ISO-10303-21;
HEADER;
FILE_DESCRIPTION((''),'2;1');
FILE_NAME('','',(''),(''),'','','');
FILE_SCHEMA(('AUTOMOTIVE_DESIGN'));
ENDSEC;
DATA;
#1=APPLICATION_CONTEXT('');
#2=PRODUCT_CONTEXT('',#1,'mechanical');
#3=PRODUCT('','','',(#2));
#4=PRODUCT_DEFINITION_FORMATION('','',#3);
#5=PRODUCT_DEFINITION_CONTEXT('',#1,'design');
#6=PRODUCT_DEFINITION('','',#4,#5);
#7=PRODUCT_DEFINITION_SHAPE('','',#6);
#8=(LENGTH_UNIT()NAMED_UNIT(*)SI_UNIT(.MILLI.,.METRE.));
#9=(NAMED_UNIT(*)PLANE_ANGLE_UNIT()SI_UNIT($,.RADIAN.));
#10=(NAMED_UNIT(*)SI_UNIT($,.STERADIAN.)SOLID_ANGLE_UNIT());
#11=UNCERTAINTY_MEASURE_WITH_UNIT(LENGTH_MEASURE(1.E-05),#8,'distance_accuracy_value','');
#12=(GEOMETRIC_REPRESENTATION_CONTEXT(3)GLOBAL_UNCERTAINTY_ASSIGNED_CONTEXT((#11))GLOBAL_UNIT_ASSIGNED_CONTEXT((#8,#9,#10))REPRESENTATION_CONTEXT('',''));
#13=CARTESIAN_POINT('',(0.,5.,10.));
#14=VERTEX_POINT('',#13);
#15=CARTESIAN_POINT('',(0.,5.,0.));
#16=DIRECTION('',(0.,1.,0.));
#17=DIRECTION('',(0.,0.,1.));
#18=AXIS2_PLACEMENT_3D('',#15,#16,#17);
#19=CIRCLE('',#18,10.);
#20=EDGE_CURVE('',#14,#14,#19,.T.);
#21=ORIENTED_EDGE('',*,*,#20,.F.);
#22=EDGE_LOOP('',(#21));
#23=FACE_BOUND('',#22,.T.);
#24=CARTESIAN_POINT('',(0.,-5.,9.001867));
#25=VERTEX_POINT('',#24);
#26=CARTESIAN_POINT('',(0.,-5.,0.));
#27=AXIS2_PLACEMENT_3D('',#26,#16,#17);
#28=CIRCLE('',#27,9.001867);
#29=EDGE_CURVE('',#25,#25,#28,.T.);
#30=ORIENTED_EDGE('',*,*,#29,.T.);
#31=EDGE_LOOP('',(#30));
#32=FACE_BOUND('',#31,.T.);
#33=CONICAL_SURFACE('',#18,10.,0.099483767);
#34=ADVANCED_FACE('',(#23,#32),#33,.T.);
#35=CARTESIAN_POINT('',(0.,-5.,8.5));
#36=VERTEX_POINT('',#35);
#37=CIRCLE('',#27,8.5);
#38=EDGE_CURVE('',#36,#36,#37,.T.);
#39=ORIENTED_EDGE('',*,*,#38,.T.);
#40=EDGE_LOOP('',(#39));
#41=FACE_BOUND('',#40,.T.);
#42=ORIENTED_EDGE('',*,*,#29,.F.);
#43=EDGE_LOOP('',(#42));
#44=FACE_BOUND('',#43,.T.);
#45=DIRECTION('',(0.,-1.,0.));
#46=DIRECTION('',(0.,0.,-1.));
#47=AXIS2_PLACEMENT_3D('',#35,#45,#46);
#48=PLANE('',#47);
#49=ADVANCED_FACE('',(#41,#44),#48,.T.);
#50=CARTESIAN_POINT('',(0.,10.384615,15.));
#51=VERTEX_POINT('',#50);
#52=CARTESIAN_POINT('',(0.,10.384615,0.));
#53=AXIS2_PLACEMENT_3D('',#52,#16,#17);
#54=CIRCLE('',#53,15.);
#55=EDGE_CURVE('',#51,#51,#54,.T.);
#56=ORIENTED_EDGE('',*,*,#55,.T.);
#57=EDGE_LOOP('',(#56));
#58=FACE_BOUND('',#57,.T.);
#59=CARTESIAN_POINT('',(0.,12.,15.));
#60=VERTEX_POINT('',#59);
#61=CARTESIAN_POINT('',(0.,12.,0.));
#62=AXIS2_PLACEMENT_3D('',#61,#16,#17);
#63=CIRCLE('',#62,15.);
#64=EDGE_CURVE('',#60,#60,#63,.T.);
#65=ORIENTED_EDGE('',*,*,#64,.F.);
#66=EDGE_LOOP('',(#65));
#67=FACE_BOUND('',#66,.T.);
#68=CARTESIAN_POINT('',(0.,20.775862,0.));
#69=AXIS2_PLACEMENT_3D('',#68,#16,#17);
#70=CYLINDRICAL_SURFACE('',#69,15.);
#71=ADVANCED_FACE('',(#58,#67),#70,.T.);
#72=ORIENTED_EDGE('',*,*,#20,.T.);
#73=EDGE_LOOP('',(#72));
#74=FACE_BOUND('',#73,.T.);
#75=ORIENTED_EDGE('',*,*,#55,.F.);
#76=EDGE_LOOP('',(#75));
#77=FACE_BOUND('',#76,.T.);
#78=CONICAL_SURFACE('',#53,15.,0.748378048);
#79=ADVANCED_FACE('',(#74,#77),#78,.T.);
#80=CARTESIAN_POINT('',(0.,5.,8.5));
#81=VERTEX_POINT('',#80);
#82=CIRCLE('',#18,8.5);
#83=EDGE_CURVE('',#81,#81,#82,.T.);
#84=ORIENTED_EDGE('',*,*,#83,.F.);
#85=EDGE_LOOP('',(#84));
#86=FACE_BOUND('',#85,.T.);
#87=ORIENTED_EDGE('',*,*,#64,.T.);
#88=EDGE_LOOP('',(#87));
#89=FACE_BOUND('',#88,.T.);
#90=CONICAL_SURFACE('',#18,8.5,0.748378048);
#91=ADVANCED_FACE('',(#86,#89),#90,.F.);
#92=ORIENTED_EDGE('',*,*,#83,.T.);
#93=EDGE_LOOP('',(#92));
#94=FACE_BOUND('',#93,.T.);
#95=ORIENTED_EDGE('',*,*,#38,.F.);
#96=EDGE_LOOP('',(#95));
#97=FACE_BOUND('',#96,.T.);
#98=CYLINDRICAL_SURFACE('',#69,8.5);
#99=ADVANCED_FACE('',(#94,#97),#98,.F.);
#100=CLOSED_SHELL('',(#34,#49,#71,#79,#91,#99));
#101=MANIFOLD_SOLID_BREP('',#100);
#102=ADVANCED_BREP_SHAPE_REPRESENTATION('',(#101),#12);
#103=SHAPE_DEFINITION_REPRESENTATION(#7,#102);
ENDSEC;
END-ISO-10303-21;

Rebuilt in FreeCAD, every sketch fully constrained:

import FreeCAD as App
import Part
import Sketcher
Q = App.Units.Quantity

doc = App.newDocument("Part")
body = doc.addObject("PartDesign::Body", "Body")

# Sketch on YZ plane
sketch1 = body.newObject("Sketcher::SketchObject", "Sketch")
sketch1.AttachmentSupport = (doc.getObject("YZ_Plane"), [""])
sketch1.MapMode = "FlatFace"
sketch1.addGeometry(Part.LineSegment(App.Vector(10.384615, 15, 0), App.Vector(5, 10, 0)), False)
sketch1.addGeometry(Part.LineSegment(App.Vector(5, 10, 0), App.Vector(-5, 9.001867, 0)), False)
sketch1.addGeometry(Part.LineSegment(App.Vector(-5, 9.001867, 0), App.Vector(-5, 8.5, 0)), False)
sketch1.addGeometry(Part.LineSegment(App.Vector(-5, 8.5, 0), App.Vector(5, 8.5, 0)), False)
sketch1.addGeometry(Part.LineSegment(App.Vector(5, 8.5, 0), App.Vector(12, 15, 0)), False)
sketch1.addGeometry(Part.LineSegment(App.Vector(12, 15, 0), App.Vector(10.384615, 15, 0)), False)
sketch1.addConstraint(Sketcher.Constraint("Coincident", 0, 2, 1, 1))
sketch1.addConstraint(Sketcher.Constraint("Coincident", 1, 2, 2, 1))
sketch1.addConstraint(Sketcher.Constraint("Coincident", 2, 2, 3, 1))
sketch1.addConstraint(Sketcher.Constraint("Coincident", 3, 2, 4, 1))
sketch1.addConstraint(Sketcher.Constraint("Coincident", 4, 2, 5, 1))
sketch1.addConstraint(Sketcher.Constraint("Coincident", 5, 2, 0, 1))
sketch1.addConstraint(Sketcher.Constraint("Vertical", 2))
sketch1.addConstraint(Sketcher.Constraint("Horizontal", 3))
sketch1.addConstraint(Sketcher.Constraint("Horizontal", 5))
sketch1.addConstraint(Sketcher.Constraint("Parallel", 0, 4))
sketch1.addConstraint(Sketcher.Constraint("Vertical", 0, 2, 3, 2))
sketch1.addConstraint(Sketcher.Constraint("DistanceX", 3, 1, 3, 2, Q("10 mm")))
sketch1.addConstraint(Sketcher.Constraint("DistanceX", -1, 1, 0, 2, Q("5 mm")))
sketch1.addConstraint(Sketcher.Constraint("DistanceY", -1, 1, 0, 2, Q("10 mm")))
sketch1.addConstraint(Sketcher.Constraint("DistanceX", -1, 1, 4, 2, Q("12 mm")))
sketch1.addConstraint(Sketcher.Constraint("DistanceY", -1, 1, 4, 2, Q("15 mm")))
sketch1.addConstraint(Sketcher.Constraint("Angle", 1, Q("-174.3 deg")))
sketch1.addConstraint(Sketcher.Constraint("DistanceY", -1, 1, 2, 2, Q("8.5 mm")))
revolution = body.newObject("PartDesign::Revolution", "Revolution")
revolution.Profile = sketch1
revolution.ReferenceAxis = (sketch1, ["H_Axis"])
revolution.Angle = 360

doc.recompute()
